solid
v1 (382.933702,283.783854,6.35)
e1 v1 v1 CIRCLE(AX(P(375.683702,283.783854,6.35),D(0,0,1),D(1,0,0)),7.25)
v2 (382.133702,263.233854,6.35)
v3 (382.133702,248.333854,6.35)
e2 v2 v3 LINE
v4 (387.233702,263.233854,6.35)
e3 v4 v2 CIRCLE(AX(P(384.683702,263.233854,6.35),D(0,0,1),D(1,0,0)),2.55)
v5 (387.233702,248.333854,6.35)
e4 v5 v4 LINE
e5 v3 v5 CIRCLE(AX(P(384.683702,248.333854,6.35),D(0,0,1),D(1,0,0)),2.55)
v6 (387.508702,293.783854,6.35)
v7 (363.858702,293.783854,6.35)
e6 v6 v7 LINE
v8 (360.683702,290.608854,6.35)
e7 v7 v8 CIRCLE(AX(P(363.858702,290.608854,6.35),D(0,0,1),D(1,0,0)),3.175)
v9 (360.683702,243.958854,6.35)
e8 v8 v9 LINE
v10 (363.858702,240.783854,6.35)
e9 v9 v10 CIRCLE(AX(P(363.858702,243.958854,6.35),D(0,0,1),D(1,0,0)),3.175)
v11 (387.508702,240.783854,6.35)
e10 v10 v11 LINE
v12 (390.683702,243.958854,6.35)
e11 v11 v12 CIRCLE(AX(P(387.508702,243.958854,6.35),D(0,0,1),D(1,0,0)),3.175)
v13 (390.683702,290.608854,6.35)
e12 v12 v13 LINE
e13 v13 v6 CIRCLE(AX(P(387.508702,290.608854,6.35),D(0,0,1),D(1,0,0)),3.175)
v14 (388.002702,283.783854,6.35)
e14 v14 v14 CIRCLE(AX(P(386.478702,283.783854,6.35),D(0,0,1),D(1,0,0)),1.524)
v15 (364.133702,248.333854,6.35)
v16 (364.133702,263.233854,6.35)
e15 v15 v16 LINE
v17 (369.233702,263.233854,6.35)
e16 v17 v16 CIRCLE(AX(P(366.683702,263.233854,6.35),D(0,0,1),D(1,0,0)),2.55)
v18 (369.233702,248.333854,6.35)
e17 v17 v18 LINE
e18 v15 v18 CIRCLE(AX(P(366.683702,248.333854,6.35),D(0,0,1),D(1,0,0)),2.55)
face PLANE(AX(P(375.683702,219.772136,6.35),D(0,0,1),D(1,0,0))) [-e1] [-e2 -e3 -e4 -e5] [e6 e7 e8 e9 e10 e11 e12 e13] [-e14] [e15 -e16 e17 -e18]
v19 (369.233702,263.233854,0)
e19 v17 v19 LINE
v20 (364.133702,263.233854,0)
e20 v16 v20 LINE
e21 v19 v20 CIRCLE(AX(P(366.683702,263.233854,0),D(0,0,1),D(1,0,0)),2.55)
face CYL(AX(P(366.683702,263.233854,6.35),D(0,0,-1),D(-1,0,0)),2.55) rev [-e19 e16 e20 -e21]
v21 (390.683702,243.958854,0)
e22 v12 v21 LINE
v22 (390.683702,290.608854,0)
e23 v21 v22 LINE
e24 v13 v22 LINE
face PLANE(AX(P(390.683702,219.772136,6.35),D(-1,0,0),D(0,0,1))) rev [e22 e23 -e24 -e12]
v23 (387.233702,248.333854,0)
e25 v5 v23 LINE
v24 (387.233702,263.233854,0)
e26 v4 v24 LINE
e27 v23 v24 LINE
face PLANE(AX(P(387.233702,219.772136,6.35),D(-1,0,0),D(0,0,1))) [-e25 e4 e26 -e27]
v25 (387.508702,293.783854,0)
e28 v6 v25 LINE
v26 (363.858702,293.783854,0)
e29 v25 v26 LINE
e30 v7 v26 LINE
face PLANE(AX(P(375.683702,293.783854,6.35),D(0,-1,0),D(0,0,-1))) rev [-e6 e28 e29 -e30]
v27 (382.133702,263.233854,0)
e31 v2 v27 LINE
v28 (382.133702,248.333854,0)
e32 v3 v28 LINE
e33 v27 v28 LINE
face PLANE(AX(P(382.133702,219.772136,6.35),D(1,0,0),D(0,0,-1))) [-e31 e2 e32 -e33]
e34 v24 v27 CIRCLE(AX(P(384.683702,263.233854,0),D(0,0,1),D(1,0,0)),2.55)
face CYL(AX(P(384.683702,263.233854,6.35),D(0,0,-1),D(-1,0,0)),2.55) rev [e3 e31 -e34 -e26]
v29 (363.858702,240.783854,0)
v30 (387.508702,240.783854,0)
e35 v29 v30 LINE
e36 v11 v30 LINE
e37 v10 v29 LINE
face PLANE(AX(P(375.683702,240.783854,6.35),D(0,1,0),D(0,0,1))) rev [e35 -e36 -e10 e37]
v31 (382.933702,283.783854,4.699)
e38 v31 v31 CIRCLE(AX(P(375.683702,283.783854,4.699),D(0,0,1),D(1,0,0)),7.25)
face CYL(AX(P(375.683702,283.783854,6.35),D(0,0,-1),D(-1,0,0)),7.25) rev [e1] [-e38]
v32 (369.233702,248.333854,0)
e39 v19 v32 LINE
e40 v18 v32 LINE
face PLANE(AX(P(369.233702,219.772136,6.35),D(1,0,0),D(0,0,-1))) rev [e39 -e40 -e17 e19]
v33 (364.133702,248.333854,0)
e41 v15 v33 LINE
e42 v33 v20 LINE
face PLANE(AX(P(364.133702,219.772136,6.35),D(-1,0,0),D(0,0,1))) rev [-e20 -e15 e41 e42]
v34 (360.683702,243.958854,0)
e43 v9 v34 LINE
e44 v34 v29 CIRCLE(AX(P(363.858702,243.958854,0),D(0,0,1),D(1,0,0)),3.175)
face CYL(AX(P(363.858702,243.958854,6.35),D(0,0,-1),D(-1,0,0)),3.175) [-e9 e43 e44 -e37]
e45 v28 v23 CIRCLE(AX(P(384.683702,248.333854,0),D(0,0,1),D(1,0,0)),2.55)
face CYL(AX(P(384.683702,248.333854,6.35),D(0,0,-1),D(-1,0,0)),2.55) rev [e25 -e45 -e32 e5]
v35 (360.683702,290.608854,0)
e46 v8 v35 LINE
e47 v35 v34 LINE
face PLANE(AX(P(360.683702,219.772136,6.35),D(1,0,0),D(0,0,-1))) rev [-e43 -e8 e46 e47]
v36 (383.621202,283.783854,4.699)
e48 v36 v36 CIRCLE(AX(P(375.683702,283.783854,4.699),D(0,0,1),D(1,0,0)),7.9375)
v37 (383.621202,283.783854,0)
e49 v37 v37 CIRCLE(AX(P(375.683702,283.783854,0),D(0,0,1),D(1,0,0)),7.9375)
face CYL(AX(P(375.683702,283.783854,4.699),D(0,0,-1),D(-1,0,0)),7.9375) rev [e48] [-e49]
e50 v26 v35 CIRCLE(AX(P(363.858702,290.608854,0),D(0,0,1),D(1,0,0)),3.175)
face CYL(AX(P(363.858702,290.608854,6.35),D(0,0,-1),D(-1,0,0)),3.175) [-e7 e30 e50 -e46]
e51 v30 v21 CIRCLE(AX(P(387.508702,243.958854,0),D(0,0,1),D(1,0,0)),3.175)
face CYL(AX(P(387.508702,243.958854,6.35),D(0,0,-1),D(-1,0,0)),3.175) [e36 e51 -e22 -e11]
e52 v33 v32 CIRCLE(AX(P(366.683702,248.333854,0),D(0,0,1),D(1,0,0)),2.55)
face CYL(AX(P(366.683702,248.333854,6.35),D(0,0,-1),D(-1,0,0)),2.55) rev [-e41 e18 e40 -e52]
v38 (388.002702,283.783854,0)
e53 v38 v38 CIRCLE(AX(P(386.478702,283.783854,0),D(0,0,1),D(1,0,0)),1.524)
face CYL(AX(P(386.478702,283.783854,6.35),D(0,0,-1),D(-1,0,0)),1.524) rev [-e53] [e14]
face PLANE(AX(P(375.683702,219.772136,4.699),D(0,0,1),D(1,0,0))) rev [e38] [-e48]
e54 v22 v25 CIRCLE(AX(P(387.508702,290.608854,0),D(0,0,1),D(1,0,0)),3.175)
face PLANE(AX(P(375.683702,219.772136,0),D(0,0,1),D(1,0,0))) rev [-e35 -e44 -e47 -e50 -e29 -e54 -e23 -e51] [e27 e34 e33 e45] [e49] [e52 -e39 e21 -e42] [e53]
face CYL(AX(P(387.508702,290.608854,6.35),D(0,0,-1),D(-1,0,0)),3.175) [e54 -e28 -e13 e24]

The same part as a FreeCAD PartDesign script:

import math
import FreeCAD as App
import Part
import Sketcher

V = App.Vector
Q = App.Units.Quantity

doc = App.newDocument("Part")
body = doc.addObject("PartDesign::Body", "Body")

# Sketch on XY plane
sketch1 = body.newObject("Sketcher::SketchObject", "Sketch")
sketch1.AttachmentSupport = (doc.getObject("XY_Plane"), [""])
sketch1.MapMode = "FlatFace"
sketch1.addGeometry(Part.LineSegment(V(387.5, 293.8, 0), V(363.9, 293.8, 0)), False)
sketch1.addGeometry(Part.ArcOfCircle(Part.Circle(V(363.9, 290.6, 0), V(0, 0, 1), 3.2), math.radians(90), math.radians(180)), False)
sketch1.addGeometry(Part.LineSegment(V(360.7, 290.6, 0), V(360.7, 244, 0)), False)
sketch1.addGeometry(Part.ArcOfCircle(Part.Circle(V(363.9, 244, 0), V(0, 0, 1), 3.2), math.radians(180), math.radians(270)), False)
sketch1.addGeometry(Part.LineSegment(V(363.9, 240.8, 0), V(387.5, 240.8, 0)), False)
sketch1.addGeometry(Part.ArcOfCircle(Part.Circle(V(387.5, 244, 0), V(0, 0, 1), 3.2), math.radians(-90), math.radians(0)), False)
sketch1.addGeometry(Part.LineSegment(V(390.7, 244, 0), V(390.7, 290.6, 0)), False)
sketch1.addGeometry(Part.ArcOfCircle(Part.Circle(V(387.5, 290.6, 0), V(0, 0, 1), 3.2), math.radians(0), math.radians(90)), False)
sketch1.addGeometry(Part.ArcOfCircle(Part.Circle(V(366.7, 263.2, 0), V(0, 0, 1), 2.5), math.radians(0), math.radians(180)), False)
sketch1.addGeometry(Part.LineSegment(V(369.2, 263.2, 0), V(369.2, 248.3, 0)), False)
sketch1.addGeometry(Part.ArcOfCircle(Part.Circle(V(366.7, 248.3, 0), V(0, 0, 1), 2.5), math.radians(180), math.radians(360)), False)
sketch1.addGeometry(Part.LineSegment(V(364.1, 248.3, 0), V(364.1, 263.2, 0)), False)
sketch1.addGeometry(Part.ArcOfCircle(Part.Circle(V(384.7, 248.3, 0), V(0, 0, 1), 2.6), math.radians(-180), math.radians(0)), False)
sketch1.addGeometry(Part.LineSegment(V(382.1, 248.3, 0), V(382.1, 263.2, 0)), False)
sketch1.addGeometry(Part.ArcOfCircle(Part.Circle(V(384.7, 263.2, 0), V(0, 0, 1), 2.6), math.radians(0), math.radians(180)), False)
sketch1.addGeometry(Part.LineSegment(V(387.2, 263.2, 0), V(387.2, 248.3, 0)), False)
sketch1.addGeometry(Part.Circle(V(386.5, 283.8, 0), V(0, 0, 1), 1.5), False)
sketch1.addGeometry(Part.Circle(V(375.7, 283.8, 0), V(0, 0, 1), 7.3), False)
sketch1.addConstraint(Sketcher.Constraint("Tangent", 0, 2, 1, 1))
sketch1.addConstraint(Sketcher.Constraint("Tangent", 1, 2, 2, 1))
sketch1.addConstraint(Sketcher.Constraint("Tangent", 2, 2, 3, 1))
sketch1.addConstraint(Sketcher.Constraint("Tangent", 3, 2, 4, 1))
sketch1.addConstraint(Sketcher.Constraint("Tangent", 4, 2, 5, 1))
sketch1.addConstraint(Sketcher.Constraint("Tangent", 5, 2, 6, 1))
sketch1.addConstraint(Sketcher.Constraint("Tangent", 6, 2, 7, 1))
sketch1.addConstraint(Sketcher.Constraint("Tangent", 7, 2, 0, 1))
sketch1.addConstraint(Sketcher.Constraint("Tangent", 8, 1, 9, 1))
sketch1.addConstraint(Sketcher.Constraint("Tangent", 9, 2, 10, 2))
sketch1.addConstraint(Sketcher.Constraint("Tangent", 10, 1, 11, 1))
sketch1.addConstraint(Sketcher.Constraint("Tangent", 11, 2, 8, 2))
sketch1.addConstraint(Sketcher.Constraint("Tangent", 12, 1, 13, 1))
sketch1.addConstraint(Sketcher.Constraint("Tangent", 13, 2, 14, 2))
sketch1.addConstraint(Sketcher.Constraint("Tangent", 14, 1, 15, 1))
sketch1.addConstraint(Sketcher.Constraint("Tangent", 15, 2, 12, 2))
sketch1.addConstraint(Sketcher.Constraint("Horizontal", 0))
sketch1.addConstraint(Sketcher.Constraint("Vertical", 2))
sketch1.addConstraint(Sketcher.Constraint("Horizontal", 4))
sketch1.addConstraint(Sketcher.Constraint("Vertical", 6))
sketch1.addConstraint(Sketcher.Constraint("Vertical", 9))
sketch1.addConstraint(Sketcher.Constraint("Vertical", 11))
sketch1.addConstraint(Sketcher.Constraint("Vertical", 13))
sketch1.addConstraint(Sketcher.Constraint("Vertical", 15))
sketch1.addConstraint(Sketcher.Constraint("Equal", 1, 3))
sketch1.addConstraint(Sketcher.Constraint("Equal", 3, 5))
sketch1.addConstraint(Sketcher.Constraint("Equal", 5, 7))
sketch1.addConstraint(Sketcher.Constraint("Equal", 10, 12))
sketch1.addConstraint(Sketcher.Constraint("Horizontal", 10, 3, 12, 3))
sketch1.addConstraint(Sketcher.Constraint("Horizontal", 8, 3, 14, 3))
sketch1.addConstraint(Sketcher.Constraint("Horizontal", 16, 3, 17, 3))
sketch1.addConstraint(Sketcher.Constraint("Diameter", 16, Q("0.12 in")))
sketch1.addConstraint(Sketcher.Constraint("Radius", 1, Q("0.125 in")))
sketch1.addConstraint(Sketcher.Constraint("Diameter", 17, 14.5))
sketch1.addConstraint(Sketcher.Constraint("Radius", 8, 2.55))
sketch1.addConstraint(Sketcher.Constraint("DistanceX", 17, 3, 16, 3, Q("0.425 in")))
sketch1.addConstraint(Sketcher.Constraint("DistanceX", 0, 2, 0, 1, 23.65))
sketch1.addConstraint(Sketcher.Constraint("DistanceY", 2, 2, 2, 1, 46.65))
sketch1.addConstraint(Sketcher.Constraint("DistanceY", 9, 2, 9, 1, 14.9))
sketch1.addConstraint(Sketcher.Constraint("DistanceX", -1, 1, 1, 3, 363.858702))
sketch1.addConstraint(Sketcher.Constraint("DistanceX", -1, 1, 8, 3, 366.683702))
sketch1.addConstraint(Sketcher.Constraint("DistanceX", -1, 1, 12, 3, 384.683702))
sketch1.addConstraint(Sketcher.Constraint("DistanceX", -1, 1, 16, 3, 386.478702))
sketch1.addConstraint(Sketcher.Constraint("DistanceY", 3, 3, 8, 3, 19.275))
sketch1.addConstraint(Sketcher.Constraint("DistanceY", 16, 3, 7, 3, 6.825))
sketch1.addConstraint(Sketcher.Constraint("DistanceY", -1, 1, 1, 3, 290.608854))
pad1 = body.newObject("PartDesign::Pad", "Pad")
pad1.Profile = sketch1
pad1.Length = Q("0.25 in")

# Sketch on XY plane
sketch2 = body.newObject("Sketcher::SketchObject", "Sketch001")
sketch2.AttachmentSupport = (doc.getObject("XY_Plane"), [""])
sketch2.MapMode = "FlatFace"
sketch2.addGeometry(Part.Circle(V(376, 284, 0), V(0, 0, 1), 8), False)
sketch2.addGeometry(Part.Circle(V(376, 284, 0), V(0, 0, 1), 7), False)
sketch2.addConstraint(Sketcher.Constraint("Coincident", 1, 3, 0, 3))
sketch2.addConstraint(Sketcher.Constraint("Diameter", 0, Q("0.625 in")))
sketch2.addConstraint(Sketcher.Constraint("Diameter", 1, 14.5))
sketch2.addConstraint(Sketcher.Constraint("DistanceX", -1, 1, 0, 3, 375.683702))
sketch2.addConstraint(Sketcher.Constraint("DistanceY", -1, 1, 0, 3, 283.783854))
pocket1 = body.newObject("PartDesign::Pocket", "Pocket")
pocket1.Profile = sketch2
pocket1.Length = Q("0.185 in")
pocket1.Reversed = True

doc.recompute()
